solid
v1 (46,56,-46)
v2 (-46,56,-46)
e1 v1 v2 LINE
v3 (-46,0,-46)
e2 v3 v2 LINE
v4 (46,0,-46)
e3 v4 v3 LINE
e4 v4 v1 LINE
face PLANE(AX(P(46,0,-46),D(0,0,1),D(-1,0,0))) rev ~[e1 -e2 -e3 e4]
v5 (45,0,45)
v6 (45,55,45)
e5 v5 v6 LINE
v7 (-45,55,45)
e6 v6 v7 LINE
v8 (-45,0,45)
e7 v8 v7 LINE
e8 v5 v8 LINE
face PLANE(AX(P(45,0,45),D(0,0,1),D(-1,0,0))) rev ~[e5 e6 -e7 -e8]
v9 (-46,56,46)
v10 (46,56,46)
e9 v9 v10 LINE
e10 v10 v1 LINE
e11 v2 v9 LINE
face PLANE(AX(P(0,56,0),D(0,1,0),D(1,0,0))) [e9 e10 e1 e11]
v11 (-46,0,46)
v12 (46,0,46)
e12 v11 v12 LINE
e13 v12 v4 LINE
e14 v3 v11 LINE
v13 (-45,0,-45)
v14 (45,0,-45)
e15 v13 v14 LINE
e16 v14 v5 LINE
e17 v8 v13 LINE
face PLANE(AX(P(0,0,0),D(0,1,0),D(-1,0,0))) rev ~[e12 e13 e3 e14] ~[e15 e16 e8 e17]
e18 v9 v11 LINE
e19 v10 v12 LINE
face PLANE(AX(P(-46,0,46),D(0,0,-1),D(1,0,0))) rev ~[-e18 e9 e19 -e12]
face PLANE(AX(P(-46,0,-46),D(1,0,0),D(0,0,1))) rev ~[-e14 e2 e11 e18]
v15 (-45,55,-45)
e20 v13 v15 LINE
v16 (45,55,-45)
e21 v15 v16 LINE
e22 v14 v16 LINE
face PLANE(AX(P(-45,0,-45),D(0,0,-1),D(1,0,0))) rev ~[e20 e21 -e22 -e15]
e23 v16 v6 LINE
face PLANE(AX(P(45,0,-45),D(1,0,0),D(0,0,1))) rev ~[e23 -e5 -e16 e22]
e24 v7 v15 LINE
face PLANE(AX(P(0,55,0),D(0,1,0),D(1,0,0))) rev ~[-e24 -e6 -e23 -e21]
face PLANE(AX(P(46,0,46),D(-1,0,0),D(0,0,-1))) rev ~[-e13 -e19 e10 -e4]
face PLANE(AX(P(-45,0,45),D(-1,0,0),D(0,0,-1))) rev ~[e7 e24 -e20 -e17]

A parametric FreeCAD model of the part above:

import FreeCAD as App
import Part
import Sketcher

V = App.Vector

doc = App.newDocument("Part")
body = doc.addObject("PartDesign::Body", "Body")

sketch1 = doc.addObject("Sketcher::SketchObject", "Sketch")
body.addObject(sketch1)
sketch1.AttachmentSupport = (doc.XZ_Plane, [""])
sketch1.MapMode = "FlatFace"
sketch1.addGeometry([
    Part.LineSegment(V(46, 46, 0), V(46, -46, 0)),
    Part.LineSegment(V(46, -46, 0), V(-46, -46, 0)),
    Part.LineSegment(V(-46, -46, 0), V(-46, 46, 0)),
    Part.LineSegment(V(-46, 46, 0), V(46, 46, 0)),
    Part.LineSegment(V(-45, 45, 0), V(-45, -45, 0)),
    Part.LineSegment(V(-45, -45, 0), V(45, -45, 0)),
    Part.LineSegment(V(45, -45, 0), V(45, 45, 0)),
    Part.LineSegment(V(45, 45, 0), V(-45, 45, 0)),
], False)
sketch1.addConstraint([
    Sketcher.Constraint("Coincident", 0, 2, 1, 1),
    Sketcher.Constraint("Coincident", 1, 2, 2, 1),
    Sketcher.Constraint("Coincident", 2, 2, 3, 1),
    Sketcher.Constraint("Coincident", 3, 2, 0, 1),
    Sketcher.Constraint("Coincident", 4, 2, 5, 1),
    Sketcher.Constraint("Coincident", 5, 2, 6, 1),
    Sketcher.Constraint("Coincident", 6, 2, 7, 1),
    Sketcher.Constraint("Coincident", 7, 2, 4, 1),
    Sketcher.Constraint("Vertical", 0),
    Sketcher.Constraint("Horizontal", 1),
    Sketcher.Constraint("Vertical", 2),
    Sketcher.Constraint("Horizontal", 3),
    Sketcher.Constraint("Vertical", 4),
    Sketcher.Constraint("Horizontal", 5),
    Sketcher.Constraint("Vertical", 6),
    Sketcher.Constraint("Horizontal", 7),
    Sketcher.Constraint("Symmetric", 0, 2, 2, 2, -1, 1),
    Sketcher.Constraint("Symmetric", 4, 2, 6, 2, -1, 1),
    Sketcher.Constraint("Equal", 3, 0),
    Sketcher.Constraint("Equal", 7, 4),
    Sketcher.Constraint("DistanceX", 1, 2, 1, 1, 92.0),
    Sketcher.Constraint("DistanceX", 5, 1, 5, 2, 90.0),
])
pad1 = doc.addObject("PartDesign::Pad", "Pad")
body.addObject(pad1)
pad1.Profile = sketch1
pad1.Length = 55
pad1.Reversed = True

sketch2 = doc.addObject("Sketcher::SketchObject", "Sketch001")
body.addObject(sketch2)
sketch2.AttachmentSupport = (doc.XZ_Plane, [""])
sketch2.MapMode = "FlatFace"
sketch2.AttachmentOffset = App.Placement(V(0, 0, -55), App.Rotation())
sketch2.addGeometry([
    Part.LineSegment(V(46, -46, 0), V(-46, -46, 0)),
    Part.LineSegment(V(-46, -46, 0), V(-46, 46, 0)),
    Part.LineSegment(V(-46, 46, 0), V(46, 46, 0)),
    Part.LineSegment(V(46, 46, 0), V(46, -46, 0)),
], False)
sketch2.addConstraint([
    Sketcher.Constraint("Coincident", 0, 2, 1, 1),
    Sketcher.Constraint("Coincident", 1, 2, 2, 1),
    Sketcher.Constraint("Coincident", 2, 2, 3, 1),
    Sketcher.Constraint("Coincident", 3, 2, 0, 1),
    Sketcher.Constraint("Horizontal", 0),
    Sketcher.Constraint("Vertical", 1),
    Sketcher.Constraint("Horizontal", 2),
    Sketcher.Constraint("Vertical", 3),
    Sketcher.Constraint("Symmetric", 0, 2, 2, 2, -1, 1),
    Sketcher.Constraint("Equal", 2, 1),
    Sketcher.Constraint("DistanceX", 0, 2, 0, 1, 92.0),
])
pad2 = doc.addObject("PartDesign::Pad", "Pad001")
body.addObject(pad2)
pad2.Profile = sketch2
pad2.Length = 1
pad2.Reversed = True

doc.recompute()
